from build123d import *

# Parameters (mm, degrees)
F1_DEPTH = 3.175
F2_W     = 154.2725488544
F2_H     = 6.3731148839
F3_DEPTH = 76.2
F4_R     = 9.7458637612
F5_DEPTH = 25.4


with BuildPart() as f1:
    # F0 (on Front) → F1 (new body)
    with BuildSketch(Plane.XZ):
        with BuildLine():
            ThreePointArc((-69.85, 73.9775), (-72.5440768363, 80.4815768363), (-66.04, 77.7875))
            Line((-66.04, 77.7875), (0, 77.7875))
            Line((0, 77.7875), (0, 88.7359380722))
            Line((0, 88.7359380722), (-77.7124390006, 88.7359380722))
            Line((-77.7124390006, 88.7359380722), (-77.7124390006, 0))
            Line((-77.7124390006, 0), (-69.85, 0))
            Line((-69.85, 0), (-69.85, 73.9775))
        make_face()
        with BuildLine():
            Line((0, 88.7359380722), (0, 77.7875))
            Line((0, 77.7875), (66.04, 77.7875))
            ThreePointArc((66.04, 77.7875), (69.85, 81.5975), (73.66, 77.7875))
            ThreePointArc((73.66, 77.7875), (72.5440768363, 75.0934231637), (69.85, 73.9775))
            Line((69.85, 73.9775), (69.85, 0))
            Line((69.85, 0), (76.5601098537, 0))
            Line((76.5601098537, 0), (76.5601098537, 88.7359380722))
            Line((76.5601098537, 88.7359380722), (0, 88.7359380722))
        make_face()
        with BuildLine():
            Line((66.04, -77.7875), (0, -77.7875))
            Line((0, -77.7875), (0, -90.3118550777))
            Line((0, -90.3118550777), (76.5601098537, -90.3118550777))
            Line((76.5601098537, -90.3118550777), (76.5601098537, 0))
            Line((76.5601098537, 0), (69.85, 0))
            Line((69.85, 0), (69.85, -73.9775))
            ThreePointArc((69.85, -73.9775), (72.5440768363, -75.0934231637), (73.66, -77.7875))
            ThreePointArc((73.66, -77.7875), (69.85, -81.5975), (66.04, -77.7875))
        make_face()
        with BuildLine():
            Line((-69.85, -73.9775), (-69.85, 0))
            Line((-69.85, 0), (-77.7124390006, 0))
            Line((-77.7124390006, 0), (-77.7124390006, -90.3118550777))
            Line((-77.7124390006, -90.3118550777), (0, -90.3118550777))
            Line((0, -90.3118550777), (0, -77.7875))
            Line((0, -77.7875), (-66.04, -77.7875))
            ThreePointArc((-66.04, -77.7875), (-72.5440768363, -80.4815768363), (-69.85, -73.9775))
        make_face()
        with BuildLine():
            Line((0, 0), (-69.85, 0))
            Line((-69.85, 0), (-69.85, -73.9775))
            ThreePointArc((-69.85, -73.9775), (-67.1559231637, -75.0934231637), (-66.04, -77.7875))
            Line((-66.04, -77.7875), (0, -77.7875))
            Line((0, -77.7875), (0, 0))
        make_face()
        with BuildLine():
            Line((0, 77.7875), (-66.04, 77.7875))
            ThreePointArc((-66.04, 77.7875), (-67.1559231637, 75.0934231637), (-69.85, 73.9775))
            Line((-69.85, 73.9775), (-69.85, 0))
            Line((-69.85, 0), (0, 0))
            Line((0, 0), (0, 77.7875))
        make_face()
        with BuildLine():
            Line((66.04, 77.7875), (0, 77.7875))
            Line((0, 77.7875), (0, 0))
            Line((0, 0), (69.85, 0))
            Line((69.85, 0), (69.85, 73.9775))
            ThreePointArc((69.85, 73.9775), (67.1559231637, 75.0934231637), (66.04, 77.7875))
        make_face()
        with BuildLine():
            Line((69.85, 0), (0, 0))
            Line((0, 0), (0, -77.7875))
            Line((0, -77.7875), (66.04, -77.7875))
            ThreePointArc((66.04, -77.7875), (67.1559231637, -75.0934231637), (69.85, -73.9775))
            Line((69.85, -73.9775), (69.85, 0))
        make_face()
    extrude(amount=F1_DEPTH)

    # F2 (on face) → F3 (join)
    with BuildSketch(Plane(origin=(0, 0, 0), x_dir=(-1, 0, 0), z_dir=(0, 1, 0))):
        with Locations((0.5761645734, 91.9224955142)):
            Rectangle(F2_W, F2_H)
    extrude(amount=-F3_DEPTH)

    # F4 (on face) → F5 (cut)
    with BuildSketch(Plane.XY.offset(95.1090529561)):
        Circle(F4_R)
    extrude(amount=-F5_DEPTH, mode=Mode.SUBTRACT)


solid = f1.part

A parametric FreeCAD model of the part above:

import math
import FreeCAD as App
import Part
import Sketcher
Q = App.Units.Quantity

doc = App.newDocument("Part")
body = doc.addObject("PartDesign::Body", "Body")

# Sketch on XZ plane
sketch1 = body.newObject("Sketcher::SketchObject", "Sketch")
sketch1.AttachmentSupport = (doc.getObject("XZ_Plane"), [""])
sketch1.MapMode = "FlatFace"
sketch1.addGeometry([
    Part.LineSegment(App.Vector(76.6, -90.3, 0), App.Vector(76.6, 88.7, 0)),  # 0
    Part.LineSegment(App.Vector(76.6, 88.7, 0), App.Vector(-77.7, 88.7, 0)),  # 1
    Part.LineSegment(App.Vector(-77.7, 88.7, 0), App.Vector(-77.7, -90.3, 0)),  # 2
    Part.LineSegment(App.Vector(-77.7, -90.3, 0), App.Vector(76.6, -90.3, 0)),  # 3
    Part.ArcOfCircle(Part.Circle(App.Vector(-69.8, 77.8, 0), App.Vector(0, 0, 1), 3.8), math.radians(0), math.radians(270)),  # 4
    Part.ArcOfCircle(Part.Circle(App.Vector(-69.8, 77.8, 0), App.Vector(0, 0, 1), 3.8), math.radians(-90), math.radians(0)),  # 5
    Part.ArcOfCircle(Part.Circle(App.Vector(69.8, 77.8, 0), App.Vector(0, 0, 1), 3.8), math.radians(0), math.radians(180)),  # 6
    Part.ArcOfCircle(Part.Circle(App.Vector(69.8, 77.8, 0), App.Vector(0, 0, 1), 3.8), math.radians(-90), math.radians(0)),  # 7
    Part.ArcOfCircle(Part.Circle(App.Vector(69.8, 77.8, 0), App.Vector(0, 0, 1), 3.8), math.radians(180), math.radians(270)),  # 8
    Part.ArcOfCircle(Part.Circle(App.Vector(69.8, -77.8, 0), App.Vector(0, 0, 1), 3.8), math.radians(0), math.radians(90)),  # 9
    Part.ArcOfCircle(Part.Circle(App.Vector(69.8, -77.8, 0), App.Vector(0, 0, 1), 3.8), math.radians(180), math.radians(360)),  # 10
    Part.ArcOfCircle(Part.Circle(App.Vector(69.8, -77.8, 0), App.Vector(0, 0, 1), 3.8), math.radians(90), math.radians(180)),  # 11
    Part.ArcOfCircle(Part.Circle(App.Vector(-69.8, -77.8, 0), App.Vector(0, 0, 1), 3.8), math.radians(90), math.radians(360)),  # 12
    Part.ArcOfCircle(Part.Circle(App.Vector(-69.8, -77.8, 0), App.Vector(0, 0, 1), 3.8), math.radians(0), math.radians(90)),  # 13
], False)
sketch1.addConstraint([
    Sketcher.Constraint("Coincident", 0, 2, 1, 1),
    Sketcher.Constraint("Coincident", 1, 2, 2, 1),
    Sketcher.Constraint("Coincident", 2, 2, 3, 1),
    Sketcher.Constraint("Coincident", 3, 2, 0, 1),
    Sketcher.Constraint("Tangent", 4, 1, 5, 2),
    Sketcher.Constraint("Coincident", 5, 1, 4, 2),
    Sketcher.Constraint("Tangent", 6, 1, 7, 2),
    Sketcher.Constraint("Tangent", 7, 1, 8, 2),
    Sketcher.Constraint("Tangent", 8, 1, 6, 2),
    Sketcher.Constraint("Tangent", 9, 1, 10, 2),
    Sketcher.Constraint("Tangent", 10, 1, 11, 2),
    Sketcher.Constraint("Tangent", 11, 1, 9, 2),
    Sketcher.Constraint("Tangent", 12, 1, 13, 2),
    Sketcher.Constraint("Coincident", 13, 1, 12, 2),
    Sketcher.Constraint("Vertical", 0),
    Sketcher.Constraint("Horizontal", 1),
    Sketcher.Constraint("Vertical", 2),
    Sketcher.Constraint("Horizontal", 3),
    Sketcher.Constraint("Equal", 5, 6),
    Sketcher.Constraint("Equal", 8, 9),
    Sketcher.Constraint("Equal", 11, 12),
    Sketcher.Constraint("Symmetric", 4, 3, 9, 3, -1, 1),
    Sketcher.Constraint("Symmetric", 6, 3, 12, 3, -1, 1),
    Sketcher.Constraint("Symmetric", 4, 3, 6, 3, -2),
    Sketcher.Constraint("Horizontal", 8, 3, 4, 1),
    Sketcher.Constraint("Horizontal", 4, 1, 6, 1),
    Sketcher.Constraint("Horizontal", 6, 1, 8, 1),
    Sketcher.Constraint("Horizontal", 13, 3, 9, 1),
    Sketcher.Constraint("Horizontal", 9, 1, 10, 1),
    Sketcher.Constraint("Horizontal", 10, 1, 13, 1),
    Sketcher.Constraint("Vertical", 13, 3, 5, 1),
    Sketcher.Constraint("Vertical", 11, 3, 7, 1),
    Sketcher.Constraint("Vertical", 7, 1, 11, 1),
    Sketcher.Constraint("Vertical", 5, 1, 12, 1),
    Sketcher.Constraint("Radius", 4, Q("0.15 in")),
    Sketcher.Constraint("DistanceX", 4, 1, -1, 1, Q("2.6 in")),
    Sketcher.Constraint("DistanceY", -1, 1, 4, 3, Q("3.0625 in")),
    Sketcher.Constraint("DistanceX", 1, 2, 1, 1, Q("154.272549 mm")),
    Sketcher.Constraint("DistanceY", 0, 1, 0, 2, Q("179.047793 mm")),
    Sketcher.Constraint("DistanceX", -1, 1, 0, 2, Q("76.56011 mm")),
    Sketcher.Constraint("DistanceY", -1, 1, 0, 2, Q("88.735938 mm")),
])
pad1 = body.newObject("PartDesign::Pad", "Pad")
pad1.Profile = sketch1
pad1.Length = Q("0.125 in")

# Sketch on XZ plane
sketch2 = body.newObject("Sketcher::SketchObject", "Sketch001")
sketch2.AttachmentSupport = (doc.getObject("XZ_Plane"), [""])
sketch2.MapMode = "FlatFace"
sketch2.addGeometry([
    Part.LineSegment(App.Vector(77, 95, 0), App.Vector(77, 89, 0)),
    Part.LineSegment(App.Vector(77, 89, 0), App.Vector(-78, 89, 0)),
    Part.LineSegment(App.Vector(-78, 89, 0), App.Vector(-78, 95, 0)),
    Part.LineSegment(App.Vector(-78, 95, 0), App.Vector(77, 95, 0)),
], False)
sketch2.addConstraint([
    Sketcher.Constraint("Coincident", 0, 2, 1, 1),
    Sketcher.Constraint("Coincident", 1, 2, 2, 1),
    Sketcher.Constraint("Coincident", 2, 2, 3, 1),
    Sketcher.Constraint("Coincident", 3, 2, 0, 1),
    Sketcher.Constraint("Vertical", 0),
    Sketcher.Constraint("Horizontal", 1),
    Sketcher.Constraint("Vertical", 2),
    Sketcher.Constraint("Horizontal", 3),
    Sketcher.Constraint("DistanceX", 1, 2, 1, 1, Q("154.272549 mm")),
    Sketcher.Constraint("DistanceY", 0, 2, 0, 1, Q("6.373115 mm")),
    Sketcher.Constraint("DistanceX", -1, 1, 0, 2, Q("76.56011 mm")),
    Sketcher.Constraint("DistanceY", -1, 1, 0, 2, Q("88.735938 mm")),
])
pad2 = body.newObject("PartDesign::Pad", "Pad001")
pad2.Profile = sketch2
pad2.Length = Q("3 in")

# Sketch on XY plane
sketch3 = body.newObject("Sketcher::SketchObject", "Sketch002")
sketch3.AttachmentSupport = (doc.getObject("XY_Plane"), [""])
sketch3.MapMode = "FlatFace"
sketch3.AttachmentOffset = App.Placement(App.Vector(0, 0, 95.109053), App.Rotation())
sketch3.addGeometry(Part.Circle(App.Vector(0, 0, 0), App.Vector(0, 0, 1), 10), False)
sketch3.addConstraint([
    Sketcher.Constraint("Coincident", 0, 3, -1, 1),
    Sketcher.Constraint("Diameter", 0, Q("19.491728 mm")),
])
pocket1 = body.newObject("PartDesign::Pocket", "Pocket")
pocket1.Profile = sketch3
pocket1.Length = Q("1 in")

doc.recompute()
